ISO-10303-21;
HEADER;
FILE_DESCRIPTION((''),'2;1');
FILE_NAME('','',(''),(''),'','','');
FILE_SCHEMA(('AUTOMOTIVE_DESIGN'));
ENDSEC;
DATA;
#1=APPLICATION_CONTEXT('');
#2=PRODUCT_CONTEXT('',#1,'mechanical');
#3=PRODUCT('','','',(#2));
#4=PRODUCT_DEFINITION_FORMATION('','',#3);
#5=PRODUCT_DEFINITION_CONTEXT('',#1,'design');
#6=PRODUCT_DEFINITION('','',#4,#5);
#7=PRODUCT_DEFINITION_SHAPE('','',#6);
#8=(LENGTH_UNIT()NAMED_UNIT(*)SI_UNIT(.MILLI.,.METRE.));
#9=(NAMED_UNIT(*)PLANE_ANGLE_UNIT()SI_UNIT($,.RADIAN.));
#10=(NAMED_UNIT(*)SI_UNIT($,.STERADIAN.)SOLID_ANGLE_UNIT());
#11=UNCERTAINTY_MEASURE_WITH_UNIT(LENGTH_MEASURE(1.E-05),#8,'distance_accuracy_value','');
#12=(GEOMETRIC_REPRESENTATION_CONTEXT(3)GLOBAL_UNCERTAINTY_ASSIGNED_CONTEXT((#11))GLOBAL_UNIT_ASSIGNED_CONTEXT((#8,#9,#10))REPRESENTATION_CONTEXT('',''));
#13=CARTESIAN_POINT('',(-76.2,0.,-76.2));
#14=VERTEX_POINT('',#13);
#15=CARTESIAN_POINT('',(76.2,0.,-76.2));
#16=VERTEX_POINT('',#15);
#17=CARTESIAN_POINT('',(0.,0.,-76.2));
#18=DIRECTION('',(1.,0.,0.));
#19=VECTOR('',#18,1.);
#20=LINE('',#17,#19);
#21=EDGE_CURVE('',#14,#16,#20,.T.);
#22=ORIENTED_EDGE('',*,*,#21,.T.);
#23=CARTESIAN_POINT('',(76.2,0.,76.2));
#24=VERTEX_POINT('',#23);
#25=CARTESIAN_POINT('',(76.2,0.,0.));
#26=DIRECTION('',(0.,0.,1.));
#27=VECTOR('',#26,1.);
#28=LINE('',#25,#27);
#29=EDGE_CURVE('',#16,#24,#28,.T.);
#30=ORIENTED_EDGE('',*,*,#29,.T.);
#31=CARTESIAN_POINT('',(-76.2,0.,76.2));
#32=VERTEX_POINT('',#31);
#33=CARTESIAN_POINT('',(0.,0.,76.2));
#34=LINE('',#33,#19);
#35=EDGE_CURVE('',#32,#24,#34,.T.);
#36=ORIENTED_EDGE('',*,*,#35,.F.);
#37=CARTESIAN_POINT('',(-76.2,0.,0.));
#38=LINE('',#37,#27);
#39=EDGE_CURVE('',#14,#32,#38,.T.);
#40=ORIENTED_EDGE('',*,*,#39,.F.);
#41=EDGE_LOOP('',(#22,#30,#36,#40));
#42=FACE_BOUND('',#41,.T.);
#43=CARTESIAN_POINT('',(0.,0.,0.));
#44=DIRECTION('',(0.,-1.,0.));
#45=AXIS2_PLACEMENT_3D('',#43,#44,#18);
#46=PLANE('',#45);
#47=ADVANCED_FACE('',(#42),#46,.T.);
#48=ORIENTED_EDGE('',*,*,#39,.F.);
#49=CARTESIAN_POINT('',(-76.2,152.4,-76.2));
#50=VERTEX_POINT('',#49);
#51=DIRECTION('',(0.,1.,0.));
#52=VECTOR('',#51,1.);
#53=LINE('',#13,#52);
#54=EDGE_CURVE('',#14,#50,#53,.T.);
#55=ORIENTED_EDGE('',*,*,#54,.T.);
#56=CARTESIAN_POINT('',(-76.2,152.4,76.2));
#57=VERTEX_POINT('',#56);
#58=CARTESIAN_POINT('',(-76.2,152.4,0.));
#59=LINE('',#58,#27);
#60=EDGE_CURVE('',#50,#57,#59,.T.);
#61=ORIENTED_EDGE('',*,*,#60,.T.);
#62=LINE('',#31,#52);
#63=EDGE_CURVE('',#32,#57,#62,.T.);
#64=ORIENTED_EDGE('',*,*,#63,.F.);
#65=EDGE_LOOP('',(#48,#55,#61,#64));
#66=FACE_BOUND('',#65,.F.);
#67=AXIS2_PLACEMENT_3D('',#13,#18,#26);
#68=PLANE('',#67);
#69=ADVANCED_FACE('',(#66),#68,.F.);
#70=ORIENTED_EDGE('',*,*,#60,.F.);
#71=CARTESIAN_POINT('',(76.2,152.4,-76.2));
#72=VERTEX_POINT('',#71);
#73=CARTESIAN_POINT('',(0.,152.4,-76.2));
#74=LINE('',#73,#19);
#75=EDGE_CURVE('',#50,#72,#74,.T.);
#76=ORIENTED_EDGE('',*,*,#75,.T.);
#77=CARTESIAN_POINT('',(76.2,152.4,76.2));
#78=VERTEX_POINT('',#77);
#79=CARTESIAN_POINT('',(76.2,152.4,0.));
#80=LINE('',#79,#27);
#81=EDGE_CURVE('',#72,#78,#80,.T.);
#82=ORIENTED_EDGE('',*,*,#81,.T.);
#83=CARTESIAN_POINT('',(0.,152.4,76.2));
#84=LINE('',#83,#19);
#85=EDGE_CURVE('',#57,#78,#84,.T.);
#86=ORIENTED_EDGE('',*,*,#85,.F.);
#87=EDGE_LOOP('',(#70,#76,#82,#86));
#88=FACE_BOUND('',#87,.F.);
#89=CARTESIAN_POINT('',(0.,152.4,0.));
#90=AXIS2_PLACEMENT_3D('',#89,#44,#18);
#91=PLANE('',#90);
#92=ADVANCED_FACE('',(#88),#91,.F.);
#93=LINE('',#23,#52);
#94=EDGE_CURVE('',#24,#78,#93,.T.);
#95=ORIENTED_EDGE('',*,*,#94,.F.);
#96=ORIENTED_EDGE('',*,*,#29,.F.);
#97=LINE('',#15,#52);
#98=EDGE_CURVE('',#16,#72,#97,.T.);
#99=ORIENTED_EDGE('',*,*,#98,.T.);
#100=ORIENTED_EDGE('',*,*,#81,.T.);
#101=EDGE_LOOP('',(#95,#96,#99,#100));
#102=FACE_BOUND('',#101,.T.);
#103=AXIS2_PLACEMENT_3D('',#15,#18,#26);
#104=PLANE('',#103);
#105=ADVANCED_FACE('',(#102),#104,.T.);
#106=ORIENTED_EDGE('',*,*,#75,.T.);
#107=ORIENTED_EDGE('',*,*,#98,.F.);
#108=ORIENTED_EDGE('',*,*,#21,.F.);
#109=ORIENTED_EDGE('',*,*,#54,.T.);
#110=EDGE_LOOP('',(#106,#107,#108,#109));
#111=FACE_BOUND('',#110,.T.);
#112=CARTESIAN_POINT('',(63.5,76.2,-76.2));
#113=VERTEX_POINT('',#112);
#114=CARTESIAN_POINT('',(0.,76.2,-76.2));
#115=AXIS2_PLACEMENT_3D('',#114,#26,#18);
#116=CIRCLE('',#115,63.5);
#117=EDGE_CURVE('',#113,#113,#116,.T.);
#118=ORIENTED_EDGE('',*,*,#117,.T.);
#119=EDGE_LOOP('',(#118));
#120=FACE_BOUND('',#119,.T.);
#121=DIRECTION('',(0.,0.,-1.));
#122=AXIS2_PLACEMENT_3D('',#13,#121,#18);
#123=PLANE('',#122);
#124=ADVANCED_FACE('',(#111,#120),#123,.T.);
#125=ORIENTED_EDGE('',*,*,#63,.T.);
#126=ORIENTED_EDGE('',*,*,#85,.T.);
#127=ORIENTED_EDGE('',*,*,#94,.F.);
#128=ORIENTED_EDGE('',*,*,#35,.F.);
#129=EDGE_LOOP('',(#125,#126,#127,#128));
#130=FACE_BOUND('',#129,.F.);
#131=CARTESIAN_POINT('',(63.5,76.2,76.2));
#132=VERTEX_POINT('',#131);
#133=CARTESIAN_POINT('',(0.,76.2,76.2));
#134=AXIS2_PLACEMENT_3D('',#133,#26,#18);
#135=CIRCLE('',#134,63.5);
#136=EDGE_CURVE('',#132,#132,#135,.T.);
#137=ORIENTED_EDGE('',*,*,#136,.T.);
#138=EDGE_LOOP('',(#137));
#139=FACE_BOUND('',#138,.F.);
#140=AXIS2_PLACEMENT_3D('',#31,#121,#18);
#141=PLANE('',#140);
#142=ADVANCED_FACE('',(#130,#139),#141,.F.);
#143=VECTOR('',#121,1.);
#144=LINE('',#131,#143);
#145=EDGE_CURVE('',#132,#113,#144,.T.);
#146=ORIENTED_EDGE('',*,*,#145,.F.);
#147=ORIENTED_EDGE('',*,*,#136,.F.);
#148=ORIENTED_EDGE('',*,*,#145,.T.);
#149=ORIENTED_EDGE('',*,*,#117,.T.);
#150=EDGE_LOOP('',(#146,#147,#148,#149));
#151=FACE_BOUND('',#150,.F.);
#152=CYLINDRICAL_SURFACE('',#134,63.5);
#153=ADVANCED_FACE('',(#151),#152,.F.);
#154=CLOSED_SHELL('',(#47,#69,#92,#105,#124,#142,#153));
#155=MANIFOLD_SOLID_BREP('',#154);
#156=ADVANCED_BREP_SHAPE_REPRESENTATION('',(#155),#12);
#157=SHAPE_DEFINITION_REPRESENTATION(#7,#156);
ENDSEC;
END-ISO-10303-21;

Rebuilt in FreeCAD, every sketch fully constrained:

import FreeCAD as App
import Part
import Sketcher
from FreeCAD import Vector
Q = App.Units.Quantity


def add_polygon(sketch, points):
    """Adds a closed chain of lines whose ends are joined by coincident constraints."""
    first, n = sketch.GeometryCount, len(points)
    for a, b in zip(points, points[1:] + points[:1]):
        sketch.addGeometry(Part.LineSegment(App.Vector(*a, 0), App.Vector(*b, 0)), False)
    for i in range(n):
        sketch.addConstraint(Sketcher.Constraint("Coincident", first + i, 2, first + (i + 1) % n, 1))

doc = App.newDocument("Part")
params = doc.addObject("Spreadsheet::Sheet", "Params")
for row, (alias, value) in enumerate([
    ("sketch1_width", "6 in"),
    ("pad1_length", "6 in"),
    ("sketch2_diameter", "5 in"),
], start=1):
    params.set(f"A{row}", alias)
    params.set(f"B{row}", "=" + value)
    params.setAlias(f"B{row}", alias)

body = doc.addObject("PartDesign::Body", "Body")

# Sketch on XZ plane
sketch1 = body.newObject("Sketcher::SketchObject", "Sketch")
sketch1.AttachmentSupport = (doc.getObject("XZ_Plane"), [""])
sketch1.MapMode = "FlatFace"
add_polygon(sketch1, [(-76, 76), (-76, -76), (76, -76), (76, 76)])  # lines 0-3
sketch1.addConstraint([
    Sketcher.Constraint("Vertical", 0),
    Sketcher.Constraint("Horizontal", 1),
    Sketcher.Constraint("Vertical", 2),
    Sketcher.Constraint("Horizontal", 3),
    Sketcher.Constraint("Symmetric", 0, 2, 2, 2, -1, 1),
    Sketcher.Constraint("Equal", 3, 0),
    Sketcher.Constraint("DistanceX", 1, 1, 1, 2, Q("6 in")),
])
sketch1.setExpression("Constraints[10]", "Params.sketch1_width")
pad1 = body.newObject("PartDesign::Pad", "Pad")
pad1.Profile = sketch1
pad1.setExpression("Length", "Params.pad1_length")
pad1.Reversed = True

# Sketch on XY plane
sketch2 = body.newObject("Sketcher::SketchObject", "Sketch001")
sketch2.AttachmentSupport = (doc.getObject("XY_Plane"), [""])
sketch2.MapMode = "FlatFace"
sketch2.AttachmentOffset = App.Placement(Vector(0, 0, 3 * 25.4), App.Rotation())
sketch2.addGeometry(Part.Circle(Vector(0, 76, 0), Vector(0, 0, 1), 64), False)
sketch2.addConstraint([
    Sketcher.Constraint("PointOnObject", 0, 3, -2),
    Sketcher.Constraint("Diameter", 0, Q("5 in")),
    Sketcher.Constraint("DistanceY", -1, 1, 0, 3, Q("3 in")),
])
sketch2.setExpression("Constraints[1]", "Params.sketch2_diameter")
pocket1 = body.newObject("PartDesign::Pocket", "Pocket")
pocket1.Profile = sketch2
pocket1.Type = "ThroughAll"

doc.recompute()
